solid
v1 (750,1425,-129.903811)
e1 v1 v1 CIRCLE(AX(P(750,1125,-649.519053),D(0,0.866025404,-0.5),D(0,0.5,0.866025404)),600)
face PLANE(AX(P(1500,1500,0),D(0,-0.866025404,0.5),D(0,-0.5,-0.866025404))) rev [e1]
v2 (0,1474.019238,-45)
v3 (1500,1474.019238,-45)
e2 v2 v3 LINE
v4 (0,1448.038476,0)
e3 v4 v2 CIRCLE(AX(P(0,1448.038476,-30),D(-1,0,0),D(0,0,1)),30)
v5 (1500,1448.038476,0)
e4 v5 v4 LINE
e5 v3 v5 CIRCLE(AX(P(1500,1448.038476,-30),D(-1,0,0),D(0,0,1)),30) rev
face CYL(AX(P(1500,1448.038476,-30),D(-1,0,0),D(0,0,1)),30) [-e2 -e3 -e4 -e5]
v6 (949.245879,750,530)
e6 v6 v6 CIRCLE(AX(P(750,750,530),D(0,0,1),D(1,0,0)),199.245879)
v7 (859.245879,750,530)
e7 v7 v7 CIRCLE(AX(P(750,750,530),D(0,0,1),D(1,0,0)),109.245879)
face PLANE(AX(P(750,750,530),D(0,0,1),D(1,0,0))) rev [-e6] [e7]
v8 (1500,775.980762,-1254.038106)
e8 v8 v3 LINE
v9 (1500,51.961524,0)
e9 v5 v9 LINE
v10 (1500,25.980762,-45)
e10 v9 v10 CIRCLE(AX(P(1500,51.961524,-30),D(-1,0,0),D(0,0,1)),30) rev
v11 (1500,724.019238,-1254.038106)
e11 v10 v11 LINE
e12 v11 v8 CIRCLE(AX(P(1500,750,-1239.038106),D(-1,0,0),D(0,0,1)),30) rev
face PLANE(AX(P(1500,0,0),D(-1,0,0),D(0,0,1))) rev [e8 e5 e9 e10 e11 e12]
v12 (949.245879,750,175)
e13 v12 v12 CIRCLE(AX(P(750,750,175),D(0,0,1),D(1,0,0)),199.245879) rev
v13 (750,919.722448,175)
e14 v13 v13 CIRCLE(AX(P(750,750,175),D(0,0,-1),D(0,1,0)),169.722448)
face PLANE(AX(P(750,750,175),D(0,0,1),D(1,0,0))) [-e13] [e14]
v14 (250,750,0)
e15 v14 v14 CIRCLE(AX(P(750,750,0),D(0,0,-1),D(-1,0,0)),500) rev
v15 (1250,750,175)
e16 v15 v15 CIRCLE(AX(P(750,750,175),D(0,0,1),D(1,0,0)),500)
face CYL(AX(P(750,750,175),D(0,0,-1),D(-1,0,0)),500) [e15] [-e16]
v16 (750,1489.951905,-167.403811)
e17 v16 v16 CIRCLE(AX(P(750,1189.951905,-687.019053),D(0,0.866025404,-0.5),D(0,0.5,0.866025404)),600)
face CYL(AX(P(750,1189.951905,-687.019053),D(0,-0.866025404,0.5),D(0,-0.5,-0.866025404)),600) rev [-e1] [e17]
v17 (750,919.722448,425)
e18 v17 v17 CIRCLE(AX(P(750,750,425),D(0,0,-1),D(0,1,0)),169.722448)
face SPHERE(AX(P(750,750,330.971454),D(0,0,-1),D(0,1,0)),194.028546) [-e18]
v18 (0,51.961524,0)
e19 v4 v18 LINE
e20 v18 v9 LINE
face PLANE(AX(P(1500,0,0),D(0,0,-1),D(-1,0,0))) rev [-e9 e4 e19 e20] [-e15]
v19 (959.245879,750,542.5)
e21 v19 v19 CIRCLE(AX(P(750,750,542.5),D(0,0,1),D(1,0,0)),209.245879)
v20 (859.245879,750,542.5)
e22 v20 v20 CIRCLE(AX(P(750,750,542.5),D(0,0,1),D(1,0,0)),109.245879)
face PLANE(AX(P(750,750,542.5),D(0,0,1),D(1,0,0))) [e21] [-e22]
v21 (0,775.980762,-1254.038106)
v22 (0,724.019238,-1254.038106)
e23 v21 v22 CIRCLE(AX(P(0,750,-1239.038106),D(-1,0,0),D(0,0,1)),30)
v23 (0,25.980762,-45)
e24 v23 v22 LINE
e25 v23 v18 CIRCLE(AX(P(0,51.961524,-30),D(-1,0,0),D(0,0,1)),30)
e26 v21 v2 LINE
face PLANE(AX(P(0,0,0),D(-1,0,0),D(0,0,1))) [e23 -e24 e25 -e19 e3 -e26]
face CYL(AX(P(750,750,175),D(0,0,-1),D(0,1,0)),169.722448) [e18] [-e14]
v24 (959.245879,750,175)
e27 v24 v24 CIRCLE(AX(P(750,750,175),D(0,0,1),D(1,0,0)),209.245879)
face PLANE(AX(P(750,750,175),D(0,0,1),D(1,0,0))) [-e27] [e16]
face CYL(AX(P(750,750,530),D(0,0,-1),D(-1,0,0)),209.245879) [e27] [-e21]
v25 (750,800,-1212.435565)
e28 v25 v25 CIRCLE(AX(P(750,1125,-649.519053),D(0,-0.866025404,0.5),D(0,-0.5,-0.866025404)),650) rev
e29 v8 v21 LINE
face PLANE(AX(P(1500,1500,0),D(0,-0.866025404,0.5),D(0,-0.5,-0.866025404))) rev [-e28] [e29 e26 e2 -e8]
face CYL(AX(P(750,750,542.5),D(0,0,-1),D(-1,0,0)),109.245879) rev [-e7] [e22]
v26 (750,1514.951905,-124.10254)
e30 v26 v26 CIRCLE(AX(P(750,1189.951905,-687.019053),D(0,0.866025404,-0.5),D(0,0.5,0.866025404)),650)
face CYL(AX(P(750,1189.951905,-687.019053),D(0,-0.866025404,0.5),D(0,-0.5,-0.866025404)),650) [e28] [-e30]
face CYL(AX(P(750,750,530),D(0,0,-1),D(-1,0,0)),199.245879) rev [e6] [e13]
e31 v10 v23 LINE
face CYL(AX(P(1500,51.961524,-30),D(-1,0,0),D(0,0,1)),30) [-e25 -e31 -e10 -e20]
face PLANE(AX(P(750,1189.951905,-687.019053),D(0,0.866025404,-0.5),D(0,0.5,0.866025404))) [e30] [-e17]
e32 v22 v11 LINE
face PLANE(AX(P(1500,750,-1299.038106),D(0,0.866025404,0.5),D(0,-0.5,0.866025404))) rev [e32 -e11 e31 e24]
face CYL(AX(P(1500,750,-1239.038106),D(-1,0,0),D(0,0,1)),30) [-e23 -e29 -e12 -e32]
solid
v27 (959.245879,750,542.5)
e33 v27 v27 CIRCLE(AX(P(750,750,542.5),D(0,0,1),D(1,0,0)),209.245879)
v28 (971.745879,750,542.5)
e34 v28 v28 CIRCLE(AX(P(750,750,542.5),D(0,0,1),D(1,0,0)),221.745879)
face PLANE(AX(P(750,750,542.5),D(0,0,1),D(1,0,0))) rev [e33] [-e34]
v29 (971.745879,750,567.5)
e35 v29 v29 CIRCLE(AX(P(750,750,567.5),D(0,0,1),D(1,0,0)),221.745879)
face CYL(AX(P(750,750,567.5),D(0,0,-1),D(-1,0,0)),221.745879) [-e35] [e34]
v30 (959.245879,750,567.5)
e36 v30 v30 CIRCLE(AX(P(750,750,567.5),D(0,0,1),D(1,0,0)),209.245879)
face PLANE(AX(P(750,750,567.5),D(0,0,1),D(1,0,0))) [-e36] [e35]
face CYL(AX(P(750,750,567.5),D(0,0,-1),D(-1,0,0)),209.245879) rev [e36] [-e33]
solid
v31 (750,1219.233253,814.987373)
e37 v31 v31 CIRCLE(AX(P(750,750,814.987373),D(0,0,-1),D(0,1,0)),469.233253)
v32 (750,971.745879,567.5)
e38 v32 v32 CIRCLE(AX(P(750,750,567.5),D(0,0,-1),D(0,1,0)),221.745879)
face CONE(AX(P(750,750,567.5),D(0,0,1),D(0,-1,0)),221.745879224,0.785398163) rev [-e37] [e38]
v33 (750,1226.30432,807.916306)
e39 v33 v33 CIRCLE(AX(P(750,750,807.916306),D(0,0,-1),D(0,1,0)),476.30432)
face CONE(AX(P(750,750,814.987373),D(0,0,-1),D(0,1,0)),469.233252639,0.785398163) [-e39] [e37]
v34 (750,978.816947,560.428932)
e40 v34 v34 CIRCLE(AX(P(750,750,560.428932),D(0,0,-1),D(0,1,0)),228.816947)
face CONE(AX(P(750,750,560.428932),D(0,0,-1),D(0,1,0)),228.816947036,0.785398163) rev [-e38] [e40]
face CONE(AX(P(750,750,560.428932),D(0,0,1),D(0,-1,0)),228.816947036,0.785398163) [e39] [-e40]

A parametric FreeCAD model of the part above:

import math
import FreeCAD as App
import Part
import Sketcher
Q = App.Units.Quantity


def edges_at(feature, points):
    """Names of the edges that pass closest to the given points."""
    edges = feature.Shape.Edges
    near = lambda p: min(range(len(edges)), key=lambda i: edges[i].distToShape(Part.Vertex(*p))[0])
    return sorted({f"Edge{near(p) + 1}" for p in points})


def add_polygon(sketch, points):
    """Adds a closed chain of lines whose ends are joined by coincident constraints."""
    first, n = sketch.GeometryCount, len(points)
    for a, b in zip(points, points[1:] + points[:1]):
        sketch.addGeometry(Part.LineSegment(App.Vector(*a, 0), App.Vector(*b, 0)), False)
    for i in range(n):
        sketch.addConstraint(Sketcher.Constraint("Coincident", first + i, 2, first + (i + 1) % n, 1))

doc = App.newDocument("Part")
body = doc.addObject("PartDesign::Body", "Body")

sketch1 = body.newObject("Sketcher::SketchObject", "Sketch")
sketch1.AttachmentSupport = (doc.getObject("YZ_Plane"), [""])
sketch1.MapMode = "FlatFace"
add_polygon(sketch1, [(1500, 0), (0, 0), (750, -1299)])
sketch1.addConstraint(Sketcher.Constraint("Horizontal", 0))
sketch1.addConstraint(Sketcher.Constraint("Coincident", 0, 2, -1, 1))
sketch1.addConstraint(Sketcher.Constraint("Equal", 1, 2))
sketch1.addConstraint(Sketcher.Constraint("DistanceX", 0, 2, 0, 1, 1500.0))
sketch1.addConstraint(Sketcher.Constraint("Angle", 1, Q("-60 deg")))
pad1 = body.newObject("PartDesign::Pad", "Pad")
pad1.Profile = sketch1
pad1.Length = 1500
doc.recompute()

fillet = body.newObject("PartDesign::Fillet", "Fillet")
fillet.Base = (pad1, edges_at(pad1, [(750, 1500, 0)]))
fillet.Radius = 30
doc.recompute()

fillet2 = body.newObject("PartDesign::Fillet", "Fillet001")
fillet2.Base = (fillet, edges_at(fillet, [(750, 0, 0), (750, 750, -1299.038)]))
fillet2.Radius = 30

sketch2 = body.newObject("Sketcher::SketchObject", "Sketch001")
sketch2.AttachmentSupport = (doc.getObject("XY_Plane"), [""])
sketch2.MapMode = "FlatFace"
sketch2.addGeometry(Part.Circle(App.Vector(750, 750, 0), App.Vector(0, 0, 1), 500), False)
sketch2.addConstraint(Sketcher.Constraint("Diameter", 0, 1000.0))
sketch2.addConstraint(Sketcher.Constraint("DistanceX", -1, 1, 0, 3, 750.0))
sketch2.addConstraint(Sketcher.Constraint("DistanceY", -1, 1, 0, 3, 750.0))
pad2 = body.newObject("PartDesign::Pad", "Pad001")
pad2.Profile = sketch2
pad2.Length = 175

sketch3 = body.newObject("Sketcher::SketchObject", "Sketch002")
sketch3.AttachmentSupport = (doc.getObject("YZ_Plane"), [""])
sketch3.MapMode = "FlatFace"
sketch3.AttachmentOffset = App.Placement(App.Vector(0, 0, 750), App.Rotation())
sketch3.addGeometry(Part.LineSegment(App.Vector(920, 175, 0), App.Vector(920, 425, 0)), False)
sketch3.addGeometry(Part.ArcOfCircle(Part.Circle(App.Vector(750, 331, 0), App.Vector(0, 0, 1), 194), math.radians(29), math.radians(90)), False)
sketch3.addGeometry(Part.LineSegment(App.Vector(750, 525, 0), App.Vector(750, 175, 0)), False)
sketch3.addGeometry(Part.LineSegment(App.Vector(750, 175, 0), App.Vector(920, 175, 0)), False)
sketch3.addGeometry(Part.LineSegment(App.Vector(750, 175, 0), App.Vector(750, 525, 0)), True)
sketch3.addConstraint(Sketcher.Constraint("Coincident", 0, 2, 1, 1))
sketch3.addConstraint(Sketcher.Constraint("Coincident", 1, 2, 2, 1))
sketch3.addConstraint(Sketcher.Constraint("Coincident", 2, 2, 3, 1))
sketch3.addConstraint(Sketcher.Constraint("Coincident", 3, 2, 0, 1))
sketch3.addConstraint(Sketcher.Constraint("Vertical", 0))
sketch3.addConstraint(Sketcher.Constraint("Vertical", 2))
sketch3.addConstraint(Sketcher.Constraint("Horizontal", 3))
sketch3.addConstraint(Sketcher.Constraint("Vertical", 4))
sketch3.addConstraint(Sketcher.Constraint("Coincident", 4, 1, 2, 2))
sketch3.addConstraint(Sketcher.Constraint("Equal", 2, 4))
sketch3.addConstraint(Sketcher.Constraint("DistanceY", 0, 1, 0, 2, 250.0))
sketch3.addConstraint(Sketcher.Constraint("DistanceY", 2, 2, 2, 1, 350.0))
sketch3.addConstraint(Sketcher.Constraint("DistanceX", -1, 1, 1, 3, 750.0))
sketch3.addConstraint(Sketcher.Constraint("DistanceY", -1, 1, 0, 2, 425.0))
sketch3.addConstraint(Sketcher.Constraint("DistanceX", -1, 1, 1, 2, 750.0))
sketch3.addConstraint(Sketcher.Constraint("Radius", 1, 194.028546))
revolution = body.newObject("PartDesign::Revolution", "Revolution")
revolution.Profile = sketch3
revolution.ReferenceAxis = (sketch3, ["Axis0"])
revolution.Angle = 360

sketch4 = body.newObject("Sketcher::SketchObject", "Sketch003")
sketch4.AttachmentSupport = (doc.getObject("XY_Plane"), [""])
sketch4.MapMode = "FlatFace"
sketch4.AttachmentOffset = App.Placement(App.Vector(0, 0, 175), App.Rotation())
sketch4.addGeometry(Part.Circle(App.Vector(750, 750, 0), App.Vector(0, 0, 1), 209), False)
sketch4.addGeometry(Part.Circle(App.Vector(750, 750, 0), App.Vector(0, 0, 1), 199), False)
sketch4.addConstraint(Sketcher.Constraint("Coincident", 1, 3, 0, 3))
sketch4.addConstraint(Sketcher.Constraint("DistanceX", -1, 1, 0, 3, 750.0))
sketch4.addConstraint(Sketcher.Constraint("DistanceY", -1, 1, 0, 3, 750.0))
sketch4.addConstraint(Sketcher.Constraint("Diameter", 0, 418.491758))
sketch4.addConstraint(Sketcher.Constraint("Diameter", 1, 398.491758))
pad3 = body.newObject("PartDesign::Pad", "Pad002")
pad3.Profile = sketch4
pad3.Length = 355

sketch5 = body.newObject("Sketcher::SketchObject", "Sketch004")
sketch5.AttachmentSupport = (doc.getObject("XY_Plane"), [""])
sketch5.MapMode = "FlatFace"
sketch5.AttachmentOffset = App.Placement(App.Vector(0, 0, 530), App.Rotation())
sketch5.addGeometry(Part.Circle(App.Vector(750, 750, 0), App.Vector(0, 0, 1), 209), False)
sketch5.addGeometry(Part.Circle(App.Vector(750, 750, 0), App.Vector(0, 0, 1), 109), False)
sketch5.addConstraint(Sketcher.Constraint("Coincident", 1, 3, 0, 3))
sketch5.addConstraint(Sketcher.Constraint("DistanceX", -1, 1, 0, 3, 750.0))
sketch5.addConstraint(Sketcher.Constraint("DistanceY", -1, 1, 0, 3, 750.0))
sketch5.addConstraint(Sketcher.Constraint("Diameter", 0, 418.491758))
sketch5.addConstraint(Sketcher.Constraint("Diameter", 1, 218.491758))
pad4 = body.newObject("PartDesign::Pad", "Pad003")
pad4.Profile = sketch5
pad4.Length = 12.5

sketch6 = body.newObject("Sketcher::SketchObject", "Sketch005")
sketch6.Placement = App.Placement(App.Vector(0, 1125, -649.519053), App.Rotation(App.Vector(1, 0, 0), App.Vector(0, -0.5, -0.866025404), App.Vector(0, 0.866025404, -0.5), "ZXY"))
sketch6.addGeometry(Part.Circle(App.Vector(750, 0, 0), App.Vector(0, 0, 1), 650), False)
sketch6.addGeometry(Part.Circle(App.Vector(750, 0, 0), App.Vector(0, 0, 1), 600), False)
sketch6.addConstraint(Sketcher.Constraint("Coincident", 1, 3, 0, 3))
sketch6.addConstraint(Sketcher.Constraint("PointOnObject", 0, 3, -1))
sketch6.addConstraint(Sketcher.Constraint("Diameter", 0, 1300.0))
sketch6.addConstraint(Sketcher.Constraint("Diameter", 1, 1200.0))
sketch6.addConstraint(Sketcher.Constraint("DistanceX", -1, 1, 0, 3, 750.0))
pad5 = body.newObject("PartDesign::Pad", "Pad004")
pad5.Profile = sketch6
pad5.Length = 75
body2 = doc.addObject("PartDesign::Body", "Body001")

sketch7 = body2.newObject("Sketcher::SketchObject", "Sketch006")
sketch7.AttachmentSupport = (doc.getObject("XY_Plane001"), [""])
sketch7.MapMode = "FlatFace"
sketch7.AttachmentOffset = App.Placement(App.Vector(0, 0, 542.5), App.Rotation())
sketch7.addGeometry(Part.Circle(App.Vector(750, 750, 0), App.Vector(0, 0, 1), 222), False)
sketch7.addGeometry(Part.Circle(App.Vector(750, 750, 0), App.Vector(0, 0, 1), 209), False)
sketch7.addConstraint(Sketcher.Constraint("Coincident", 1, 3, 0, 3))
sketch7.addConstraint(Sketcher.Constraint("DistanceX", -1, 1, 0, 3, 750.0))
sketch7.addConstraint(Sketcher.Constraint("DistanceY", -1, 1, 0, 3, 750.0))
sketch7.addConstraint(Sketcher.Constraint("Diameter", 0, 443.491758))
sketch7.addConstraint(Sketcher.Constraint("Diameter", 1, 418.491758))
pad6 = body2.newObject("PartDesign::Pad", "Pad005")
pad6.Profile = sketch7
pad6.Length = 25
body3 = doc.addObject("PartDesign::Body", "Body002")

sketch8 = body3.newObject("Sketcher::SketchObject", "Sketch007")
sketch8.AttachmentSupport = (doc.getObject("YZ_Plane002"), [""])
sketch8.MapMode = "FlatFace"
sketch8.AttachmentOffset = App.Placement(App.Vector(0, 0, 750), App.Rotation())
add_polygon(sketch8, [(1219, 815), (972, 568), (979, 560), (1226, 808)])
sketch8.addGeometry(Part.LineSegment(App.Vector(750, 560, 0), App.Vector(750, 815, 0)), True)
sketch8.addConstraint(Sketcher.Constraint("Vertical", 4))
sketch8.addConstraint(Sketcher.Constraint("Perpendicular", 0, 1))
sketch8.addConstraint(Sketcher.Constraint("Perpendicular", 1, 2))
sketch8.addConstraint(Sketcher.Constraint("Perpendicular", 2, 3))
sketch8.addConstraint(Sketcher.Constraint("Horizontal", 1, 2, 4, 1))
sketch8.addConstraint(Sketcher.Constraint("Horizontal", 3, 2, 4, 2))
sketch8.addConstraint(Sketcher.Constraint("Angle", 0, Q("-135 deg")))
sketch8.addConstraint(Sketcher.Constraint("Distance", 0, 350.0))
sketch8.addConstraint(Sketcher.Constraint("Distance", 1, 10.0))
sketch8.addConstraint(Sketcher.Constraint("DistanceX", -1, 1, 4, 1, 750.0))
sketch8.addConstraint(Sketcher.Constraint("DistanceY", -1, 1, 0, 2, 567.5))
sketch8.addConstraint(Sketcher.Constraint("DistanceX", -1, 1, 0, 2, 971.745879))
revolution2 = body3.newObject("PartDesign::Revolution", "Revolution001")
revolution2.Profile = sketch8
revolution2.ReferenceAxis = (sketch8, ["Axis0"])
revolution2.Angle = 360

doc.recompute()
